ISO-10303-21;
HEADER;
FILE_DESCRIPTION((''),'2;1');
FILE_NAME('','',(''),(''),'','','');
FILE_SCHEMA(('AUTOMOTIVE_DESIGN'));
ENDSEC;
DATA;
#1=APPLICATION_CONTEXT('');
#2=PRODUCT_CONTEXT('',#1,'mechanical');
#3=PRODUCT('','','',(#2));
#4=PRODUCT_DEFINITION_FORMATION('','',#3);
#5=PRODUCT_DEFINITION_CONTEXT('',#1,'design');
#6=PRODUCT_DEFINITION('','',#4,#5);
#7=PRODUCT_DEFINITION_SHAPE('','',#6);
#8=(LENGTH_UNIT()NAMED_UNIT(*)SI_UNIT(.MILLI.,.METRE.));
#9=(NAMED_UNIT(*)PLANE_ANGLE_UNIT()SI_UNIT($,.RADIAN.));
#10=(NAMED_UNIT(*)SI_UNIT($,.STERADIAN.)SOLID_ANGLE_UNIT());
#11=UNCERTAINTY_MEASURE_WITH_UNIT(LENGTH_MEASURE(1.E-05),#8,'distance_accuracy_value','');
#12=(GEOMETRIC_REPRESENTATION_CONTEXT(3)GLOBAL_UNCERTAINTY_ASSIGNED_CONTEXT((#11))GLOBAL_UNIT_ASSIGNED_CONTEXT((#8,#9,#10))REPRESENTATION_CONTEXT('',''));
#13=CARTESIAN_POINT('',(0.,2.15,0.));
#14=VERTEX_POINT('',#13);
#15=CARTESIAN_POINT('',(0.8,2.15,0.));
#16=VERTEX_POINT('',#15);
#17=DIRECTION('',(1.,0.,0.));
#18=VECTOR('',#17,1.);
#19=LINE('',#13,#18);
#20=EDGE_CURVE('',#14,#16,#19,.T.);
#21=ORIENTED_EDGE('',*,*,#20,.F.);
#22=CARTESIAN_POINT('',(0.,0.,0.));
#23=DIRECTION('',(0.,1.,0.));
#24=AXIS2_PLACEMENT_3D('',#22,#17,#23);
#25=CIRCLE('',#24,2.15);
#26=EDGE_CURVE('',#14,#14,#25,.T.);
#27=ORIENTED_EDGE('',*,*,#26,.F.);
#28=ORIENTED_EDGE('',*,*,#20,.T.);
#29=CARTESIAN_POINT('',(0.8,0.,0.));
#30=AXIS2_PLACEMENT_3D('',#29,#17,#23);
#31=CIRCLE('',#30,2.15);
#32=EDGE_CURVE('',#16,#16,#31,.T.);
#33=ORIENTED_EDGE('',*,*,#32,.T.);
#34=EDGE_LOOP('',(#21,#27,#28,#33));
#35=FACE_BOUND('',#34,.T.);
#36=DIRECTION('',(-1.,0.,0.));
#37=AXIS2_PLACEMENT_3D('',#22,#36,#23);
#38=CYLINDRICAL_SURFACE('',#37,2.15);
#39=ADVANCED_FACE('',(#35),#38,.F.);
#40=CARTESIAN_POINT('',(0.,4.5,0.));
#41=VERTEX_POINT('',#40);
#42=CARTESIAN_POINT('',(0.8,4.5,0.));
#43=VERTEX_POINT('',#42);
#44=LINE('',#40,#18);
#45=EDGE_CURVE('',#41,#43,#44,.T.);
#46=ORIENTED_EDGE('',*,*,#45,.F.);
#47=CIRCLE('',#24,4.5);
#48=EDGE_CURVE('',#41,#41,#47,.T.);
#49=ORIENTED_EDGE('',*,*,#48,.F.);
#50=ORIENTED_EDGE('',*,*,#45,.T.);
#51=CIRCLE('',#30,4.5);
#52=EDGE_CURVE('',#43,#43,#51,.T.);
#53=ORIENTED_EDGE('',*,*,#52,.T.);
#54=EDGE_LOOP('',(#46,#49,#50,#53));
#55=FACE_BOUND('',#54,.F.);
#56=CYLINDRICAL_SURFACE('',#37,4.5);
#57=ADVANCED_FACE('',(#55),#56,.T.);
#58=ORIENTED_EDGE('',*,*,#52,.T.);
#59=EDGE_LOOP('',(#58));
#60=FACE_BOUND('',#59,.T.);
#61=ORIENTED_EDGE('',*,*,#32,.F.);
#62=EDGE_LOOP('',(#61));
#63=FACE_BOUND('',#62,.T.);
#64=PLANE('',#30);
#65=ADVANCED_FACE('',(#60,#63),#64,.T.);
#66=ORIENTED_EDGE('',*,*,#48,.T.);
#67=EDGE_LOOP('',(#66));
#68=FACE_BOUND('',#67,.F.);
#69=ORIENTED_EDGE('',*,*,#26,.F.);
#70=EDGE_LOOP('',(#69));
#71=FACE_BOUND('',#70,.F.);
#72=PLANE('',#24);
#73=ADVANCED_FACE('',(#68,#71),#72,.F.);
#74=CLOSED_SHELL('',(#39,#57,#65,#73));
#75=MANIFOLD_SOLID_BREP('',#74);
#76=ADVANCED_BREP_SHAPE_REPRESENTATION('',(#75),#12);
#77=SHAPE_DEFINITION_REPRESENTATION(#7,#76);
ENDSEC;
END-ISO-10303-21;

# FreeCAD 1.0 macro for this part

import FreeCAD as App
import Part
import Sketcher
Q = App.Units.Quantity

doc = App.newDocument("Part")
body = doc.addObject("PartDesign::Body", "Body")

# Sketch on YZ plane
sketch1 = body.newObject("Sketcher::SketchObject", "Sketch")
sketch1.AttachmentSupport = (doc.getObject("YZ_Plane"), [""])
sketch1.MapMode = "FlatFace"
sketch1.addGeometry(Part.Circle(App.Vector(0, 0, 0), App.Vector(0, 0, 1), 4.5), False)
sketch1.addGeometry(Part.Circle(App.Vector(0, 0, 0), App.Vector(0, 0, 1), 2.1), False)
sketch1.addConstraint(Sketcher.Constraint("Coincident", 0, 3, -1, 1))
sketch1.addConstraint(Sketcher.Constraint("Coincident", 1, 3, -1, 1))
sketch1.addConstraint(Sketcher.Constraint("Diameter", 0, Q("9 mm")))
sketch1.addConstraint(Sketcher.Constraint("Diameter", 1, Q("4.3 mm")))
pad1 = body.newObject("PartDesign::Pad", "Pad")
pad1.Profile = sketch1
pad1.Length = 0.8

doc.recompute()
